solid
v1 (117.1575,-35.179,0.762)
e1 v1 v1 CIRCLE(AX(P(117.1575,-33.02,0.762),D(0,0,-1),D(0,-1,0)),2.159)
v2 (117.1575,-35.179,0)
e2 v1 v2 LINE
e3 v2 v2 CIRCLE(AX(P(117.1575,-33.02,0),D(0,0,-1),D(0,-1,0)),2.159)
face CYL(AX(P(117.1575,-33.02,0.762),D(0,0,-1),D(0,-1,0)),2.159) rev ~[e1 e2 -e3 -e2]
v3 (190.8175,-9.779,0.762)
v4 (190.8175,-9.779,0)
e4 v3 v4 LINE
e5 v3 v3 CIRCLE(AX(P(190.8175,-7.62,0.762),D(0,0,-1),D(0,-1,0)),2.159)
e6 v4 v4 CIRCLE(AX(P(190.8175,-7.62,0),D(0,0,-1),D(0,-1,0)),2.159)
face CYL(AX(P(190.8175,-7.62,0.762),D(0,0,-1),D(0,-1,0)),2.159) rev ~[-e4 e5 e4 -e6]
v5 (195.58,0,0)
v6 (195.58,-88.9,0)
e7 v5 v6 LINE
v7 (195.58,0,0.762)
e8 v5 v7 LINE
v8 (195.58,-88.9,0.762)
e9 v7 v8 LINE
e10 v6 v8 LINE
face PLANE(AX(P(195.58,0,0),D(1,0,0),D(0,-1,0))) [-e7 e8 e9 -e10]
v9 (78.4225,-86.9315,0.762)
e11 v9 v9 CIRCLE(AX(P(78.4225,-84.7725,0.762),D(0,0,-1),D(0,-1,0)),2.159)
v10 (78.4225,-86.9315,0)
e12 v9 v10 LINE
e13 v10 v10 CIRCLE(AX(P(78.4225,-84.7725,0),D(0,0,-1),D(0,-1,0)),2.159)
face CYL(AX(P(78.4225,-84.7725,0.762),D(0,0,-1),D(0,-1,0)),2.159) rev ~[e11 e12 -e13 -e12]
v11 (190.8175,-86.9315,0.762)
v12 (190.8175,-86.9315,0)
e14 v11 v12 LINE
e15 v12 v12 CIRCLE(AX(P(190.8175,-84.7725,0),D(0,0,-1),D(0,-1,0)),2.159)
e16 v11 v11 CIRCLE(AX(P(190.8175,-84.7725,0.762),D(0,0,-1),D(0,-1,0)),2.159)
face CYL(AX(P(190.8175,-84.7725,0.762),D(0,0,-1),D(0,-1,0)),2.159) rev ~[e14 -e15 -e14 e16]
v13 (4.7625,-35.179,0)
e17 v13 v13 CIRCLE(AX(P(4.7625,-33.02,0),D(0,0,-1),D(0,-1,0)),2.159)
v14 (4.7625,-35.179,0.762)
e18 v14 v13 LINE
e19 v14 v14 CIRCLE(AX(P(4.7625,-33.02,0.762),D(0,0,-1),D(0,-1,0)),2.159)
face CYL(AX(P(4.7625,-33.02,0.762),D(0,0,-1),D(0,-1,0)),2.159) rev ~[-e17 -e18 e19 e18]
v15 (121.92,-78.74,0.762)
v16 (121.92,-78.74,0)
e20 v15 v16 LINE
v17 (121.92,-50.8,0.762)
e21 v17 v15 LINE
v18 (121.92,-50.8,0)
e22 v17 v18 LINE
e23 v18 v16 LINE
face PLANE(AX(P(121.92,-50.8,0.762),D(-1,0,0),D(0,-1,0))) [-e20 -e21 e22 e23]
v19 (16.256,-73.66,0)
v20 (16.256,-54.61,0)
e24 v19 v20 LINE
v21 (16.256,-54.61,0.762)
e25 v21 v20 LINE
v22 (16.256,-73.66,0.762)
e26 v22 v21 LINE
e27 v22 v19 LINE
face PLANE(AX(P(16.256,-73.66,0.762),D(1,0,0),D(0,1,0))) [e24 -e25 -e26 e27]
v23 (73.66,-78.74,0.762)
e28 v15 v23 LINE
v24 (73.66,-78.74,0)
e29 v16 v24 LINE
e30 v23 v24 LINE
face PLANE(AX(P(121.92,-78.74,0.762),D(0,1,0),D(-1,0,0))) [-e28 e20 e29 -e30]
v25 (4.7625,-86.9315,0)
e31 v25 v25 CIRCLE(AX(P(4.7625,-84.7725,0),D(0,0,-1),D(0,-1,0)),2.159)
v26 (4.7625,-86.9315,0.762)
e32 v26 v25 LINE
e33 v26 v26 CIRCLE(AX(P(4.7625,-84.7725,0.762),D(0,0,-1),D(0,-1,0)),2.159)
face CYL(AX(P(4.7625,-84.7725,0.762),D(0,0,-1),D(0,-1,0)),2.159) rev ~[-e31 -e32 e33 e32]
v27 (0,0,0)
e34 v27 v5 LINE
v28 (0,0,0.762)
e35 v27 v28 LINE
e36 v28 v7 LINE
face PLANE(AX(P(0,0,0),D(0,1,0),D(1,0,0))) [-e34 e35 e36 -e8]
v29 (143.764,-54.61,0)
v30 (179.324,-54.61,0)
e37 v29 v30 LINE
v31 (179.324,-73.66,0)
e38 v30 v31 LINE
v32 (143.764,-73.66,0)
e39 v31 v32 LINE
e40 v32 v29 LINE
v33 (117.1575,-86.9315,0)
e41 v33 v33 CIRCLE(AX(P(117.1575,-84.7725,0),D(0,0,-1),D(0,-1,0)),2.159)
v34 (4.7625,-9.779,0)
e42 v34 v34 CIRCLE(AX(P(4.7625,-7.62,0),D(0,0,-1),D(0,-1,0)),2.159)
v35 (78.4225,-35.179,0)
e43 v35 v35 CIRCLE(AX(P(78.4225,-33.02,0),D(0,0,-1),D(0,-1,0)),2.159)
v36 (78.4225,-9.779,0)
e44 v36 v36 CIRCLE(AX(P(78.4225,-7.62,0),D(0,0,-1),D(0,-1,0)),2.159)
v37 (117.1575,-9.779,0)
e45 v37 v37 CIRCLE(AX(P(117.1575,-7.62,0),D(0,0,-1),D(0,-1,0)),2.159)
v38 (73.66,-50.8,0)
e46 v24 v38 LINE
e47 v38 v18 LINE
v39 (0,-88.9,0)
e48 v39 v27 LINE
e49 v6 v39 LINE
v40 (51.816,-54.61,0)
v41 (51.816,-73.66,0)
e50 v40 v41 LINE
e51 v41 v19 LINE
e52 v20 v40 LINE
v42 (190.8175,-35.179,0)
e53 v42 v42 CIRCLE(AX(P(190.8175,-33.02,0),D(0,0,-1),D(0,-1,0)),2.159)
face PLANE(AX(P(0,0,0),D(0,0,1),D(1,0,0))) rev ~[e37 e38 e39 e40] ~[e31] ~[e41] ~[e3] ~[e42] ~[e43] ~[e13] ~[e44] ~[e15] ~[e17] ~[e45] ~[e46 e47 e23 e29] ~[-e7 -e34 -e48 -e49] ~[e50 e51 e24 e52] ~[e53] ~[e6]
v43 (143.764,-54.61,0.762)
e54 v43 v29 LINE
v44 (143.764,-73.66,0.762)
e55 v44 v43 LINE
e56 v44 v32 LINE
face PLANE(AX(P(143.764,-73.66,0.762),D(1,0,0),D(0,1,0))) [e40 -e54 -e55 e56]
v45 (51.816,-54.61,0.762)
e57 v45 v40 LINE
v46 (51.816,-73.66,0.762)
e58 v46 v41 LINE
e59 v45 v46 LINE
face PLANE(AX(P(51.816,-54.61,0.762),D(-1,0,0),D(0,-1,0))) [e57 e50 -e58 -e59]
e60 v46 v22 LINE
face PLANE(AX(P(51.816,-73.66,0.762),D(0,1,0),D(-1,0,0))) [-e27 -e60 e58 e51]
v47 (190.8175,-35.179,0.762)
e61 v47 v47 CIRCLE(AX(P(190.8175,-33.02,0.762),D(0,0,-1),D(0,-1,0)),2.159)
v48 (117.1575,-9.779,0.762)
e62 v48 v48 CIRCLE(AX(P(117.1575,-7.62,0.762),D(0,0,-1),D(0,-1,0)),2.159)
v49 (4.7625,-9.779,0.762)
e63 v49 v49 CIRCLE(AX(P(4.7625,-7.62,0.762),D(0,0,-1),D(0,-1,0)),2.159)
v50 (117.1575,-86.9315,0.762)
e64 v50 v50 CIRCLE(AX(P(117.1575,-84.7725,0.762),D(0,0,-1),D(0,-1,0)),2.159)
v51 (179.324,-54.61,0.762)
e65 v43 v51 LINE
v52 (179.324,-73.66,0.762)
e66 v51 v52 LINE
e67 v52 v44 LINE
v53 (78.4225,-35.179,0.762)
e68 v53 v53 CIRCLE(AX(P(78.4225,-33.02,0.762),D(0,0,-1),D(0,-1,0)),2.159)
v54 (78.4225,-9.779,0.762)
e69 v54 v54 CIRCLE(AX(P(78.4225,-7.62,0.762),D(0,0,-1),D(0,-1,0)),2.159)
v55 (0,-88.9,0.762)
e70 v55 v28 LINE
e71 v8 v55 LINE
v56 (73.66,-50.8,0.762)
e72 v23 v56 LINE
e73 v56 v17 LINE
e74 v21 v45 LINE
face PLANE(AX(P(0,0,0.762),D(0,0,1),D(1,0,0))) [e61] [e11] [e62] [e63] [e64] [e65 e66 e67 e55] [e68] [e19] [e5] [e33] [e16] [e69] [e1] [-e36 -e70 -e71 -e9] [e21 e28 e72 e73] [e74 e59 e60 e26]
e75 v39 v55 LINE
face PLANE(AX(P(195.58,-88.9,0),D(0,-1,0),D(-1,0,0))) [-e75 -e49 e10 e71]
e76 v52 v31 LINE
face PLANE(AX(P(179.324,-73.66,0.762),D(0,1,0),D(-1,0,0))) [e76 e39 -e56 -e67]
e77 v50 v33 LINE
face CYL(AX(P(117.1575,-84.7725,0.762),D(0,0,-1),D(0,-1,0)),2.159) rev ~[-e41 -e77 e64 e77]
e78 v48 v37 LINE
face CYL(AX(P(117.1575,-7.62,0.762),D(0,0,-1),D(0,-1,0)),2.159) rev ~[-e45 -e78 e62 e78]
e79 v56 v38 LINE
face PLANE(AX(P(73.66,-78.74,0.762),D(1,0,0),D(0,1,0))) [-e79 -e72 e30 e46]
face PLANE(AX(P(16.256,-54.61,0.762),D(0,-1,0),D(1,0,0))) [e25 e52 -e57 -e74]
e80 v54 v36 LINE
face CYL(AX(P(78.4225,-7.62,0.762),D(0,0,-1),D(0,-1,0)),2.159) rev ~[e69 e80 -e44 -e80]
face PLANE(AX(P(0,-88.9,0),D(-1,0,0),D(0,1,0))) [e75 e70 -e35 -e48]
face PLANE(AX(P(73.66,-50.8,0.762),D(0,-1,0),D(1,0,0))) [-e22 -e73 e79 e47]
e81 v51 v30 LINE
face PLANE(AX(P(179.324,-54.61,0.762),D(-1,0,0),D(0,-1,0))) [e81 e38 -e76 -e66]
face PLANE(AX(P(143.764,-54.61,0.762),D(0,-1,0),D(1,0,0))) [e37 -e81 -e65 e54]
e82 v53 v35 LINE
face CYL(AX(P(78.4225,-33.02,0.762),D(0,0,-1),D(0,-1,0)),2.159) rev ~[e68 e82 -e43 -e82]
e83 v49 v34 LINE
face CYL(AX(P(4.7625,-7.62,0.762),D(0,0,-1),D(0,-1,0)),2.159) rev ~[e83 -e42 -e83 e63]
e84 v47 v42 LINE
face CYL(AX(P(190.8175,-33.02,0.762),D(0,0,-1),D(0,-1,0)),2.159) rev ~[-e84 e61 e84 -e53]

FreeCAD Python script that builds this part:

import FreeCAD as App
import Part
import Sketcher

V = App.Vector
Q = App.Units.Quantity

doc = App.newDocument("Part")
body = doc.addObject("PartDesign::Body", "Body")

# Sketch on XY plane
sketch1 = body.newObject("Sketcher::SketchObject", "Sketch")
sketch1.AttachmentSupport = (doc.getObject("XY_Plane"), [""])
sketch1.MapMode = "FlatFace"
sketch1.addGeometry(Part.LineSegment(V(196, 0, 0), V(0, 0, 0)), False)
sketch1.addGeometry(Part.LineSegment(V(0, 0, 0), V(0, -89, 0)), False)
sketch1.addGeometry(Part.LineSegment(V(0, -89, 0), V(196, -89, 0)), False)
sketch1.addGeometry(Part.LineSegment(V(196, -89, 0), V(196, 0, 0)), False)
sketch1.addConstraint(Sketcher.Constraint("Coincident", 0, 2, 1, 1))
sketch1.addConstraint(Sketcher.Constraint("Coincident", 1, 2, 2, 1))
sketch1.addConstraint(Sketcher.Constraint("Coincident", 2, 2, 3, 1))
sketch1.addConstraint(Sketcher.Constraint("Coincident", 3, 2, 0, 1))
sketch1.addConstraint(Sketcher.Constraint("Horizontal", 0))
sketch1.addConstraint(Sketcher.Constraint("Vertical", 1))
sketch1.addConstraint(Sketcher.Constraint("Horizontal", 2))
sketch1.addConstraint(Sketcher.Constraint("Vertical", 3))
sketch1.addConstraint(Sketcher.Constraint("Coincident", 0, 2, -1, 1))
sketch1.addConstraint(Sketcher.Constraint("DistanceX", 0, 2, 0, 1, Q("7.7 in")))
sketch1.addConstraint(Sketcher.Constraint("DistanceY", 1, 2, 1, 1, Q("3.5 in")))
pad1 = body.newObject("PartDesign::Pad", "Pad")
pad1.Profile = sketch1
pad1.Length = Q("0.03 in")

# Sketch on XY plane
sketch2 = body.newObject("Sketcher::SketchObject", "Sketch001")
sketch2.AttachmentSupport = (doc.getObject("XY_Plane"), [""])
sketch2.MapMode = "FlatFace"
sketch2.AttachmentOffset = App.Placement(V(0, 0, 0.03 * 25.4), App.Rotation())
sketch2.addGeometry(Part.LineSegment(V(52, -55, 0), V(16, -55, 0)), False)
sketch2.addGeometry(Part.LineSegment(V(16, -55, 0), V(16, -74, 0)), False)
sketch2.addGeometry(Part.LineSegment(V(16, -74, 0), V(52, -74, 0)), False)
sketch2.addGeometry(Part.LineSegment(V(52, -74, 0), V(52, -55, 0)), False)
sketch2.addGeometry(Part.LineSegment(V(179, -55, 0), V(144, -55, 0)), False)
sketch2.addGeometry(Part.LineSegment(V(144, -55, 0), V(144, -74, 0)), False)
sketch2.addGeometry(Part.LineSegment(V(144, -74, 0), V(179, -74, 0)), False)
sketch2.addGeometry(Part.LineSegment(V(179, -74, 0), V(179, -55, 0)), False)
sketch2.addGeometry(Part.LineSegment(V(122, -51, 0), V(74, -51, 0)), False)
sketch2.addGeometry(Part.LineSegment(V(74, -51, 0), V(74, -79, 0)), False)
sketch2.addGeometry(Part.LineSegment(V(74, -79, 0), V(122, -79, 0)), False)
sketch2.addGeometry(Part.LineSegment(V(122, -79, 0), V(122, -51, 0)), False)
sketch2.addConstraint(Sketcher.Constraint("Coincident", 0, 2, 1, 1))
sketch2.addConstraint(Sketcher.Constraint("Coincident", 1, 2, 2, 1))
sketch2.addConstraint(Sketcher.Constraint("Coincident", 2, 2, 3, 1))
sketch2.addConstraint(Sketcher.Constraint("Coincident", 3, 2, 0, 1))
sketch2.addConstraint(Sketcher.Constraint("Coincident", 4, 2, 5, 1))
sketch2.addConstraint(Sketcher.Constraint("Coincident", 5, 2, 6, 1))
sketch2.addConstraint(Sketcher.Constraint("Coincident", 6, 2, 7, 1))
sketch2.addConstraint(Sketcher.Constraint("Coincident", 7, 2, 4, 1))
sketch2.addConstraint(Sketcher.Constraint("Coincident", 8, 2, 9, 1))
sketch2.addConstraint(Sketcher.Constraint("Coincident", 9, 2, 10, 1))
sketch2.addConstraint(Sketcher.Constraint("Coincident", 10, 2, 11, 1))
sketch2.addConstraint(Sketcher.Constraint("Coincident", 11, 2, 8, 1))
sketch2.addConstraint(Sketcher.Constraint("Horizontal", 0))
sketch2.addConstraint(Sketcher.Constraint("Vertical", 1))
sketch2.addConstraint(Sketcher.Constraint("Horizontal", 2))
sketch2.addConstraint(Sketcher.Constraint("Vertical", 3))
sketch2.addConstraint(Sketcher.Constraint("Horizontal", 4))
sketch2.addConstraint(Sketcher.Constraint("Vertical", 5))
sketch2.addConstraint(Sketcher.Constraint("Horizontal", 6))
sketch2.addConstraint(Sketcher.Constraint("Vertical", 7))
sketch2.addConstraint(Sketcher.Constraint("Horizontal", 8))
sketch2.addConstraint(Sketcher.Constraint("Vertical", 9))
sketch2.addConstraint(Sketcher.Constraint("Horizontal", 10))
sketch2.addConstraint(Sketcher.Constraint("Vertical", 11))
sketch2.addConstraint(Sketcher.Constraint("Horizontal", 3, 2, 4, 2))
sketch2.addConstraint(Sketcher.Constraint("Horizontal", 2, 2, 5, 2))
sketch2.addConstraint(Sketcher.Constraint("Equal", 2, 4))
sketch2.addConstraint(Sketcher.Constraint("DistanceX", 0, 2, 0, 1, Q("1.4 in")))
sketch2.addConstraint(Sketcher.Constraint("DistanceX", 8, 2, 8, 1, Q("1.9 in")))
sketch2.addConstraint(Sketcher.Constraint("DistanceY", 9, 2, 9, 1, Q("1.1 in")))
sketch2.addConstraint(Sketcher.Constraint("DistanceY", 1, 2, 1, 1, Q("0.75 in")))
sketch2.addConstraint(Sketcher.Constraint("DistanceY", 1, 2, -1, 1, Q("2.9 in")))
sketch2.addConstraint(Sketcher.Constraint("DistanceX", -1, 1, 8, 2, Q("2.9 in")))
sketch2.addConstraint(Sketcher.Constraint("DistanceX", -1, 1, 0, 2, Q("0.64 in")))
sketch2.addConstraint(Sketcher.Constraint("DistanceY", 8, 2, -1, 1, Q("2 in")))
sketch2.addConstraint(Sketcher.Constraint("DistanceX", -1, 1, 4, 2, Q("5.66 in")))
pocket1 = body.newObject("PartDesign::Pocket", "Pocket")
pocket1.Profile = sketch2
pocket1.Length = Q("1 in")

# Sketch on XY plane
sketch3 = body.newObject("Sketcher::SketchObject", "Sketch002")
sketch3.AttachmentSupport = (doc.getObject("XY_Plane"), [""])
sketch3.MapMode = "FlatFace"
sketch3.AttachmentOffset = App.Placement(V(0, 0, 0.03 * 25.4), App.Rotation())
sketch3.addGeometry(Part.Circle(V(190.8, -84.8, 0), V(0, 0, 1), 2.2), False)
sketch3.addGeometry(Part.Circle(V(117.2, -84.8, 0), V(0, 0, 1), 2.2), False)
sketch3.addGeometry(Part.Circle(V(78.4, -84.8, 0), V(0, 0, 1), 2.2), False)
sketch3.addGeometry(Part.Circle(V(4.8, -84.8, 0), V(0, 0, 1), 2.2), False)
sketch3.addGeometry(Part.Circle(V(4.8, -7.6, 0), V(0, 0, 1), 2.2), False)
sketch3.addGeometry(Part.Circle(V(4.8, -33, 0), V(0, 0, 1), 2.2), False)
sketch3.addGeometry(Part.Circle(V(78.4, -33, 0), V(0, 0, 1), 2.2), False)
sketch3.addGeometry(Part.Circle(V(78.4, -7.6, 0), V(0, 0, 1), 2.2), False)
sketch3.addGeometry(Part.Circle(V(117.2, -7.6, 0), V(0, 0, 1), 2.2), False)
sketch3.addGeometry(Part.Circle(V(117.2, -33, 0), V(0, 0, 1), 2.2), False)
sketch3.addGeometry(Part.Circle(V(190.8, -33, 0), V(0, 0, 1), 2.2), False)
sketch3.addGeometry(Part.Circle(V(190.8, -7.6, 0), V(0, 0, 1), 2.2), False)
sketch3.addConstraint(Sketcher.Constraint("Equal", 0, 1))
sketch3.addConstraint(Sketcher.Constraint("Equal", 1, 2))
sketch3.addConstraint(Sketcher.Constraint("Equal", 2, 3))
sketch3.addConstraint(Sketcher.Constraint("Equal", 3, 4))
sketch3.addConstraint(Sketcher.Constraint("Equal", 4, 5))
sketch3.addConstraint(Sketcher.Constraint("Equal", 5, 6))
sketch3.addConstraint(Sketcher.Constraint("Equal", 6, 7))
sketch3.addConstraint(Sketcher.Constraint("Equal", 7, 8))
sketch3.addConstraint(Sketcher.Constraint("Equal", 8, 9))
sketch3.addConstraint(Sketcher.Constraint("Equal", 9, 10))
sketch3.addConstraint(Sketcher.Constraint("Equal", 10, 11))
sketch3.addConstraint(Sketcher.Constraint("Horizontal", 0, 3, 1, 3))
sketch3.addConstraint(Sketcher.Constraint("Horizontal", 1, 3, 2, 3))
sketch3.addConstraint(Sketcher.Constraint("Horizontal", 2, 3, 3, 3))
sketch3.addConstraint(Sketcher.Constraint("Horizontal", 5, 3, 6, 3))
sketch3.addConstraint(Sketcher.Constraint("Horizontal", 4, 3, 7, 3))
sketch3.addConstraint(Sketcher.Constraint("Horizontal", 7, 3, 8, 3))
sketch3.addConstraint(Sketcher.Constraint("Horizontal", 6, 3, 9, 3))
sketch3.addConstraint(Sketcher.Constraint("Horizontal", 9, 3, 10, 3))
sketch3.addConstraint(Sketcher.Constraint("Horizontal", 8, 3, 11, 3))
sketch3.addConstraint(Sketcher.Constraint("Vertical", 3, 3, 4, 3))
sketch3.addConstraint(Sketcher.Constraint("Vertical", 4, 3, 5, 3))
sketch3.addConstraint(Sketcher.Constraint("Vertical", 2, 3, 6, 3))
sketch3.addConstraint(Sketcher.Constraint("Vertical", 6, 3, 7, 3))
sketch3.addConstraint(Sketcher.Constraint("Vertical", 1, 3, 8, 3))
sketch3.addConstraint(Sketcher.Constraint("Vertical", 8, 3, 9, 3))
sketch3.addConstraint(Sketcher.Constraint("Vertical", 0, 3, 10, 3))
sketch3.addConstraint(Sketcher.Constraint("Vertical", 10, 3, 11, 3))
sketch3.addConstraint(Sketcher.Constraint("Diameter", 0, Q("0.17 in")))
sketch3.addConstraint(Sketcher.Constraint("DistanceY", 5, 3, 4, 3, Q("1 in")))
sketch3.addConstraint(Sketcher.Constraint("DistanceY", 4, 3, -1, 1, Q("0.3 in")))
sketch3.addConstraint(Sketcher.Constraint("DistanceX", 1, 3, 0, 3, Q("2.9 in")))
sketch3.addConstraint(Sketcher.Constraint("DistanceX", 3, 3, 2, 3, Q("2.9 in")))
sketch3.addConstraint(Sketcher.Constraint("DistanceX", -1, 1, 3, 3, Q("0.1875 in")))
sketch3.addConstraint(Sketcher.Constraint("DistanceX", 2, 3, 1, 3, Q("1.525 in")))
sketch3.addConstraint(Sketcher.Constraint("DistanceY", 0, 3, -1, 1, Q("3.3375 in")))
doc.recompute()
hole = body.newObject("PartDesign::Hole", "Hole")
hole.Profile = sketch3
hole.ThreadType = "None"
hole.Diameter = Q("0.17 in")
hole.DepthType = "ThroughAll"

doc.recompute()
